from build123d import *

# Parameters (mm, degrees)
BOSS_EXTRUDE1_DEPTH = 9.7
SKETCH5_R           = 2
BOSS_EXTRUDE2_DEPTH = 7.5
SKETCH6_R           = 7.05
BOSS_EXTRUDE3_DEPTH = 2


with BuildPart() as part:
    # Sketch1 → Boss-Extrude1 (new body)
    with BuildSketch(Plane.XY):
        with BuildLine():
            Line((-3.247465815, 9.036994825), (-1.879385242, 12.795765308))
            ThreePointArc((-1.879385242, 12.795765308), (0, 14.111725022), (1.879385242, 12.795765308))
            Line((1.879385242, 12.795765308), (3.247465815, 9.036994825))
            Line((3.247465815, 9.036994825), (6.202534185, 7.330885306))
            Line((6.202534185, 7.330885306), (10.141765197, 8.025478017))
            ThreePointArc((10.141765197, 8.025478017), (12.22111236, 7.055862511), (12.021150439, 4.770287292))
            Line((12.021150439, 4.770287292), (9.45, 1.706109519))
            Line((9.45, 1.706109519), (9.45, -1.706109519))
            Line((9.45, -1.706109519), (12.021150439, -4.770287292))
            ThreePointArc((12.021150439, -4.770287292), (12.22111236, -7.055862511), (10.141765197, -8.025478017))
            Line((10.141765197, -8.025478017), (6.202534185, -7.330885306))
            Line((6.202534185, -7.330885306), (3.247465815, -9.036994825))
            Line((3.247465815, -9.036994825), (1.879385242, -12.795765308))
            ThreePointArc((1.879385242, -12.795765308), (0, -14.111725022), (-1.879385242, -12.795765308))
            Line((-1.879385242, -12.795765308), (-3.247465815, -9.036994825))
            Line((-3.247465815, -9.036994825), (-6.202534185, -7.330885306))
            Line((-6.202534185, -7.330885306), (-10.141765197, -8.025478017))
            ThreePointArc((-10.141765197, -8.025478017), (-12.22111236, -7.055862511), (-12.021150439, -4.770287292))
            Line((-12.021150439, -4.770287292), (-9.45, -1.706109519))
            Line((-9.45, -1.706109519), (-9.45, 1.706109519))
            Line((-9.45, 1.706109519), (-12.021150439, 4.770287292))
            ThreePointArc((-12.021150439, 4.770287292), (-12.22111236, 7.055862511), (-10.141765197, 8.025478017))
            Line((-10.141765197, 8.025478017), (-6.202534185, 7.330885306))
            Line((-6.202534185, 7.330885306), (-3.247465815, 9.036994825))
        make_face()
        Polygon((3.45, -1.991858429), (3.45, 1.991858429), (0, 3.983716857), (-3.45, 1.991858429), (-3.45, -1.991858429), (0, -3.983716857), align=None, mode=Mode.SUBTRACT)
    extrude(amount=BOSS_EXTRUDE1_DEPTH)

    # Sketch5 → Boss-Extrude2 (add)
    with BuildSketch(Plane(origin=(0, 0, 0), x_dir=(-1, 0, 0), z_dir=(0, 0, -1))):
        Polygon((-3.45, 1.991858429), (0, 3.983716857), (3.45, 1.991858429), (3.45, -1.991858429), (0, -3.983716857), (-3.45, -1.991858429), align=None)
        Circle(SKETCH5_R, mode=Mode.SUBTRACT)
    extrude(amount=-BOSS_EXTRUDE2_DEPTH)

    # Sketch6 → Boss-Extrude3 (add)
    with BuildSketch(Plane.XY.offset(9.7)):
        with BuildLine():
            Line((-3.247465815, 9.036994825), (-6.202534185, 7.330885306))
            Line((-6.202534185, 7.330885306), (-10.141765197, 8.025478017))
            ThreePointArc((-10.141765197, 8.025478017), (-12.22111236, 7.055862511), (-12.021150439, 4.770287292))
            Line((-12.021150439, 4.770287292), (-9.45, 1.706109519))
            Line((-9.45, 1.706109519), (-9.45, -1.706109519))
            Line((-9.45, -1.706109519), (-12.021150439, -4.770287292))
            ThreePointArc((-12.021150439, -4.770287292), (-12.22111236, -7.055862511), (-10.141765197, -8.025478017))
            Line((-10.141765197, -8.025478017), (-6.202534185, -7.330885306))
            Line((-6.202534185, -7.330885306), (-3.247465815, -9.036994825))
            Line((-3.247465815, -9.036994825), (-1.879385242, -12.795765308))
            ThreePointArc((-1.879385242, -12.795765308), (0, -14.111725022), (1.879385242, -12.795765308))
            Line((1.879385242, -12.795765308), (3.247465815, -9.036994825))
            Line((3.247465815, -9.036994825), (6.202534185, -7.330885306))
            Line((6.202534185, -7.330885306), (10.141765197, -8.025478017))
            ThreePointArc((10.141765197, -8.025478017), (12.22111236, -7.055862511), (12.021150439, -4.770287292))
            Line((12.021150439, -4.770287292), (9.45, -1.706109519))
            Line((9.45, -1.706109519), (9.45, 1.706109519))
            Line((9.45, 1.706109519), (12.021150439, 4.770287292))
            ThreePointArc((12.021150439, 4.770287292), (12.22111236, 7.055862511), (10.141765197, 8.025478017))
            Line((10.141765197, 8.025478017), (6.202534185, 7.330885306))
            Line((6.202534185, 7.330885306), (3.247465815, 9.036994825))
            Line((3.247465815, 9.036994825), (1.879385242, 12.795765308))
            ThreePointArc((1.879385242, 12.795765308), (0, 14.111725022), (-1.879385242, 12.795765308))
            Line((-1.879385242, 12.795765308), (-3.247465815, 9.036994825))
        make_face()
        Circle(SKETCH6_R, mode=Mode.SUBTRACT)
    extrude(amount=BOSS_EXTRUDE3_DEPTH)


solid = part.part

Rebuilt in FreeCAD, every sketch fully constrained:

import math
import FreeCAD as App
import Part
import Sketcher
Q = App.Units.Quantity

doc = App.newDocument("Part")
body = doc.addObject("PartDesign::Body", "Body")

sketch1 = body.newObject("Sketcher::SketchObject", "Sketch")
sketch1.AttachmentSupport = (doc.getObject("XY_Plane"), [""])
sketch1.MapMode = "FlatFace"
sketch1.addGeometry(Part.LineSegment(App.Vector(-1.9, 12.8, 0), App.Vector(-3.2, 9, 0)), False)
sketch1.addGeometry(Part.LineSegment(App.Vector(-3.2, 9, 0), App.Vector(-6.2, 7.3, 0)), False)
sketch1.addGeometry(Part.LineSegment(App.Vector(-6.2, 7.3, 0), App.Vector(-10.1, 8, 0)), False)
sketch1.addGeometry(Part.ArcOfCircle(Part.Circle(App.Vector(-10.5, 6.1, 0), App.Vector(0, 0, 1), 2), math.radians(80), math.radians(220)), False)
sketch1.addGeometry(Part.LineSegment(App.Vector(-12, 4.8, 0), App.Vector(-9.4, 1.7, 0)), False)
sketch1.addGeometry(Part.LineSegment(App.Vector(-9.4, 1.7, 0), App.Vector(-9.4, -1.7, 0)), False)
sketch1.addGeometry(Part.LineSegment(App.Vector(-9.4, -1.7, 0), App.Vector(-12, -4.8, 0)), False)
sketch1.addGeometry(Part.ArcOfCircle(Part.Circle(App.Vector(-10.5, -6.1, 0), App.Vector(0, 0, 1), 2), math.radians(140), math.radians(280)), False)
sketch1.addGeometry(Part.LineSegment(App.Vector(-10.1, -8, 0), App.Vector(-6.2, -7.3, 0)), False)
sketch1.addGeometry(Part.LineSegment(App.Vector(-6.2, -7.3, 0), App.Vector(-3.2, -9, 0)), False)
sketch1.addGeometry(Part.LineSegment(App.Vector(-3.2, -9, 0), App.Vector(-1.9, -12.8, 0)), False)
sketch1.addGeometry(Part.ArcOfCircle(Part.Circle(App.Vector(0, -12.1, 0), App.Vector(0, 0, 1), 2), math.radians(-160), math.radians(-20)), False)
sketch1.addGeometry(Part.LineSegment(App.Vector(1.9, -12.8, 0), App.Vector(3.2, -9, 0)), False)
sketch1.addGeometry(Part.LineSegment(App.Vector(3.2, -9, 0), App.Vector(6.2, -7.3, 0)), False)
sketch1.addGeometry(Part.LineSegment(App.Vector(6.2, -7.3, 0), App.Vector(10.1, -8, 0)), False)
sketch1.addGeometry(Part.ArcOfCircle(Part.Circle(App.Vector(10.5, -6.1, 0), App.Vector(0, 0, 1), 2), math.radians(-100), math.radians(40)), False)
sketch1.addGeometry(Part.LineSegment(App.Vector(12, -4.8, 0), App.Vector(9.4, -1.7, 0)), False)
sketch1.addGeometry(Part.LineSegment(App.Vector(9.4, -1.7, 0), App.Vector(9.4, 1.7, 0)), False)
sketch1.addGeometry(Part.LineSegment(App.Vector(9.4, 1.7, 0), App.Vector(12, 4.8, 0)), False)
sketch1.addGeometry(Part.ArcOfCircle(Part.Circle(App.Vector(10.5, 6.1, 0), App.Vector(0, 0, 1), 2), math.radians(-40), math.radians(100)), False)
sketch1.addGeometry(Part.LineSegment(App.Vector(10.1, 8, 0), App.Vector(6.2, 7.3, 0)), False)
sketch1.addGeometry(Part.LineSegment(App.Vector(6.2, 7.3, 0), App.Vector(3.2, 9, 0)), False)
sketch1.addGeometry(Part.LineSegment(App.Vector(3.2, 9, 0), App.Vector(1.9, 12.8, 0)), False)
sketch1.addGeometry(Part.ArcOfCircle(Part.Circle(App.Vector(0, 12.1, 0), App.Vector(0, 0, 1), 2), math.radians(20), math.radians(160)), False)
sketch1.addGeometry(Part.LineSegment(App.Vector(3.5, -2, 0), App.Vector(0, -4, 0)), False)
sketch1.addGeometry(Part.LineSegment(App.Vector(0, -4, 0), App.Vector(-3.5, -2, 0)), False)
sketch1.addGeometry(Part.LineSegment(App.Vector(-3.5, -2, 0), App.Vector(-3.5, 2, 0)), False)
sketch1.addGeometry(Part.LineSegment(App.Vector(-3.5, 2, 0), App.Vector(0, 4, 0)), False)
sketch1.addGeometry(Part.LineSegment(App.Vector(0, 4, 0), App.Vector(3.5, 2, 0)), False)
sketch1.addGeometry(Part.LineSegment(App.Vector(3.5, 2, 0), App.Vector(3.5, -2, 0)), False)
sketch1.addConstraint(Sketcher.Constraint("Coincident", 0, 2, 1, 1))
sketch1.addConstraint(Sketcher.Constraint("Coincident", 1, 2, 2, 1))
sketch1.addConstraint(Sketcher.Constraint("Tangent", 2, 2, 3, 1))
sketch1.addConstraint(Sketcher.Constraint("Tangent", 3, 2, 4, 1))
sketch1.addConstraint(Sketcher.Constraint("Coincident", 4, 2, 5, 1))
sketch1.addConstraint(Sketcher.Constraint("Coincident", 5, 2, 6, 1))
sketch1.addConstraint(Sketcher.Constraint("Tangent", 6, 2, 7, 1))
sketch1.addConstraint(Sketcher.Constraint("Tangent", 7, 2, 8, 1))
sketch1.addConstraint(Sketcher.Constraint("Coincident", 8, 2, 9, 1))
sketch1.addConstraint(Sketcher.Constraint("Coincident", 9, 2, 10, 1))
sketch1.addConstraint(Sketcher.Constraint("Tangent", 10, 2, 11, 1))
sketch1.addConstraint(Sketcher.Constraint("Tangent", 11, 2, 12, 1))
sketch1.addConstraint(Sketcher.Constraint("Coincident", 12, 2, 13, 1))
sketch1.addConstraint(Sketcher.Constraint("Coincident", 13, 2, 14, 1))
sketch1.addConstraint(Sketcher.Constraint("Tangent", 14, 2, 15, 1))
sketch1.addConstraint(Sketcher.Constraint("Tangent", 15, 2, 16, 1))
sketch1.addConstraint(Sketcher.Constraint("Coincident", 16, 2, 17, 1))
sketch1.addConstraint(Sketcher.Constraint("Coincident", 17, 2, 18, 1))
sketch1.addConstraint(Sketcher.Constraint("Tangent", 18, 2, 19, 1))
sketch1.addConstraint(Sketcher.Constraint("Tangent", 19, 2, 20, 1))
sketch1.addConstraint(Sketcher.Constraint("Coincident", 20, 2, 21, 1))
sketch1.addConstraint(Sketcher.Constraint("Coincident", 21, 2, 22, 1))
sketch1.addConstraint(Sketcher.Constraint("Tangent", 22, 2, 23, 1))
sketch1.addConstraint(Sketcher.Constraint("Tangent", 23, 2, 0, 1))
sketch1.addConstraint(Sketcher.Constraint("Coincident", 24, 2, 25, 1))
sketch1.addConstraint(Sketcher.Constraint("Coincident", 25, 2, 26, 1))
sketch1.addConstraint(Sketcher.Constraint("Coincident", 26, 2, 27, 1))
sketch1.addConstraint(Sketcher.Constraint("Coincident", 27, 2, 28, 1))
sketch1.addConstraint(Sketcher.Constraint("Coincident", 28, 2, 29, 1))
sketch1.addConstraint(Sketcher.Constraint("Coincident", 29, 2, 24, 1))
sketch1.addConstraint(Sketcher.Constraint("Vertical", 5))
sketch1.addConstraint(Sketcher.Constraint("Vertical", 17))
sketch1.addConstraint(Sketcher.Constraint("Vertical", 26))
sketch1.addConstraint(Sketcher.Constraint("Vertical", 29))
sketch1.addConstraint(Sketcher.Constraint("Equal", 3, 7))
sketch1.addConstraint(Sketcher.Constraint("Equal", 7, 11))
sketch1.addConstraint(Sketcher.Constraint("Equal", 11, 15))
sketch1.addConstraint(Sketcher.Constraint("Equal", 15, 19))
sketch1.addConstraint(Sketcher.Constraint("Equal", 19, 23))
sketch1.addConstraint(Sketcher.Constraint("Symmetric", 3, 3, 15, 3, -1, 1))
sketch1.addConstraint(Sketcher.Constraint("Symmetric", 7, 3, 19, 3, -1, 1))
sketch1.addConstraint(Sketcher.Constraint("Symmetric", 11, 3, 23, 3, -1, 1))
sketch1.addConstraint(Sketcher.Constraint("Symmetric", 0, 2, 12, 2, -1, 1))
sketch1.addConstraint(Sketcher.Constraint("Symmetric", 1, 2, 13, 2, -1, 1))
sketch1.addConstraint(Sketcher.Constraint("Symmetric", 4, 2, 16, 2, -1, 1))
sketch1.addConstraint(Sketcher.Constraint("Symmetric", 8, 2, 20, 2, -1, 1))
sketch1.addConstraint(Sketcher.Constraint("Symmetric", 9, 2, 21, 2, -1, 1))
sketch1.addConstraint(Sketcher.Constraint("Symmetric", 24, 2, 27, 2, -1, 1))
sketch1.addConstraint(Sketcher.Constraint("Symmetric", 25, 2, 28, 2, -1, 1))
sketch1.addConstraint(Sketcher.Constraint("Symmetric", 7, 3, 15, 3, -2))
sketch1.addConstraint(Sketcher.Constraint("Symmetric", 10, 2, 11, 2, -2))
sketch1.addConstraint(Sketcher.Constraint("Symmetric", 8, 2, 13, 2, -2))
sketch1.addConstraint(Sketcher.Constraint("PointOnObject", 24, 2, -2))
sketch1.addConstraint(Sketcher.Constraint("Parallel", 6, 18))
sketch1.addConstraint(Sketcher.Constraint("Parallel", 13, 24))
sketch1.addConstraint(Sketcher.Constraint("Parallel", 21, 25))
sketch1.addConstraint(Sketcher.Constraint("Parallel", 24, 27))
sketch1.addConstraint(Sketcher.Constraint("Horizontal", 9, 2, 12, 2))
sketch1.addConstraint(Sketcher.Constraint("Horizontal", 6, 2, 15, 2))
sketch1.addConstraint(Sketcher.Constraint("Equal", 0, 2))
sketch1.addConstraint(Sketcher.Constraint("Equal", 2, 4))
sketch1.addConstraint(Sketcher.Constraint("Radius", 3, Q("2 mm")))
sketch1.addConstraint(Sketcher.Constraint("Angle", 0, Q("-110 deg")))
sketch1.addConstraint(Sketcher.Constraint("Angle", 1, Q("-150 deg")))
sketch1.addConstraint(Sketcher.Constraint("Angle", 2, Q("170 deg")))
sketch1.addConstraint(Sketcher.Constraint("Angle", 4, Q("-50 deg")))
sketch1.addConstraint(Sketcher.Constraint("Distance", 0, Q("4 mm")))
sketch1.addConstraint(Sketcher.Constraint("DistanceX", 5, 2, 25, 2, Q("6 mm")))
sketch1.addConstraint(Sketcher.Constraint("DistanceX", 26, 2, 28, 2, Q("6.9 mm")))
sketch1.addConstraint(Sketcher.Constraint("DistanceY", 5, 2, 5, 1, Q("3.412219 mm")))
sketch1.addConstraint(Sketcher.Constraint("DistanceY", 26, 1, 26, 2, Q("3.983717 mm")))
pad1 = body.newObject("PartDesign::Pad", "Pad")
pad1.Profile = sketch1
pad1.Length = 9.7

sketch2 = body.newObject("Sketcher::SketchObject", "Sketch001")
sketch2.AttachmentSupport = (doc.getObject("XY_Plane"), [""])
sketch2.MapMode = "FlatFace"
sketch2.addGeometry(Part.LineSegment(App.Vector(0, 4, 0), App.Vector(3.5, 2, 0)), False)
sketch2.addGeometry(Part.LineSegment(App.Vector(3.5, 2, 0), App.Vector(3.5, -2, 0)), False)
sketch2.addGeometry(Part.LineSegment(App.Vector(3.5, -2, 0), App.Vector(0, -4, 0)), False)
sketch2.addGeometry(Part.LineSegment(App.Vector(0, -4, 0), App.Vector(-3.5, -2, 0)), False)
sketch2.addGeometry(Part.LineSegment(App.Vector(-3.5, -2, 0), App.Vector(-3.5, 2, 0)), False)
sketch2.addGeometry(Part.LineSegment(App.Vector(-3.5, 2, 0), App.Vector(0, 4, 0)), False)
sketch2.addGeometry(Part.Circle(App.Vector(0, 0, 0), App.Vector(0, 0, 1), 2), False)
sketch2.addConstraint(Sketcher.Constraint("Coincident", 0, 2, 1, 1))
sketch2.addConstraint(Sketcher.Constraint("Coincident", 1, 2, 2, 1))
sketch2.addConstraint(Sketcher.Constraint("Coincident", 2, 2, 3, 1))
sketch2.addConstraint(Sketcher.Constraint("Coincident", 3, 2, 4, 1))
sketch2.addConstraint(Sketcher.Constraint("Coincident", 4, 2, 5, 1))
sketch2.addConstraint(Sketcher.Constraint("Coincident", 5, 2, 0, 1))
sketch2.addConstraint(Sketcher.Constraint("Vertical", 1))
sketch2.addConstraint(Sketcher.Constraint("Vertical", 4))
sketch2.addConstraint(Sketcher.Constraint("Coincident", 6, 3, -1, 1))
sketch2.addConstraint(Sketcher.Constraint("Symmetric", 0, 2, 3, 2, -1, 1))
sketch2.addConstraint(Sketcher.Constraint("Symmetric", 2, 2, 5, 2, -1, 1))
sketch2.addConstraint(Sketcher.Constraint("PointOnObject", 2, 2, -2))
sketch2.addConstraint(Sketcher.Constraint("Parallel", 2, 5))
sketch2.addConstraint(Sketcher.Constraint("Horizontal", 1, 2, 3, 2))
sketch2.addConstraint(Sketcher.Constraint("Diameter", 6, Q("4 mm")))
sketch2.addConstraint(Sketcher.Constraint("Angle", 0, Q("-30 deg")))
sketch2.addConstraint(Sketcher.Constraint("DistanceX", 3, 2, 1, 2, Q("6.9 mm")))
sketch2.addConstraint(Sketcher.Constraint("DistanceY", 1, 2, 1, 1, Q("3.983717 mm")))
pad2 = body.newObject("PartDesign::Pad", "Pad001")
pad2.Profile = sketch2
pad2.Length = 7.5

sketch3 = body.newObject("Sketcher::SketchObject", "Sketch002")
sketch3.AttachmentSupport = (doc.getObject("XY_Plane"), [""])
sketch3.MapMode = "FlatFace"
sketch3.AttachmentOffset = App.Placement(App.Vector(0, 0, 9.7), App.Rotation())
sketch3.addGeometry(Part.LineSegment(App.Vector(-3.2, 9, 0), App.Vector(-6.2, 7.3, 0)), False)
sketch3.addGeometry(Part.LineSegment(App.Vector(-6.2, 7.3, 0), App.Vector(-10.1, 8, 0)), False)
sketch3.addGeometry(Part.ArcOfCircle(Part.Circle(App.Vector(-10.5, 6.1, 0), App.Vector(0, 0, 1), 2), math.radians(80), math.radians(220)), False)
sketch3.addGeometry(Part.LineSegment(App.Vector(-12, 4.8, 0), App.Vector(-9.4, 1.7, 0)), False)
sketch3.addGeometry(Part.LineSegment(App.Vector(-9.4, 1.7, 0), App.Vector(-9.4, -1.7, 0)), False)
sketch3.addGeometry(Part.LineSegment(App.Vector(-9.4, -1.7, 0), App.Vector(-12, -4.8, 0)), False)
sketch3.addGeometry(Part.ArcOfCircle(Part.Circle(App.Vector(-10.5, -6.1, 0), App.Vector(0, 0, 1), 2), math.radians(140), math.radians(280)), False)
sketch3.addGeometry(Part.LineSegment(App.Vector(-10.1, -8, 0), App.Vector(-6.2, -7.3, 0)), False)
sketch3.addGeometry(Part.LineSegment(App.Vector(-6.2, -7.3, 0), App.Vector(-3.2, -9, 0)), False)
sketch3.addGeometry(Part.LineSegment(App.Vector(-3.2, -9, 0), App.Vector(-1.9, -12.8, 0)), False)
sketch3.addGeometry(Part.ArcOfCircle(Part.Circle(App.Vector(0, -12.1, 0), App.Vector(0, 0, 1), 2), math.radians(-160), math.radians(-20)), False)
sketch3.addGeometry(Part.LineSegment(App.Vector(1.9, -12.8, 0), App.Vector(3.2, -9, 0)), False)
sketch3.addGeometry(Part.LineSegment(App.Vector(3.2, -9, 0), App.Vector(6.2, -7.3, 0)), False)
sketch3.addGeometry(Part.LineSegment(App.Vector(6.2, -7.3, 0), App.Vector(10.1, -8, 0)), False)
sketch3.addGeometry(Part.ArcOfCircle(Part.Circle(App.Vector(10.5, -6.1, 0), App.Vector(0, 0, 1), 2), math.radians(-100), math.radians(40)), False)
sketch3.addGeometry(Part.LineSegment(App.Vector(12, -4.8, 0), App.Vector(9.4, -1.7, 0)), False)
sketch3.addGeometry(Part.LineSegment(App.Vector(9.4, -1.7, 0), App.Vector(9.4, 1.7, 0)), False)
sketch3.addGeometry(Part.LineSegment(App.Vector(9.4, 1.7, 0), App.Vector(12, 4.8, 0)), False)
sketch3.addGeometry(Part.ArcOfCircle(Part.Circle(App.Vector(10.5, 6.1, 0), App.Vector(0, 0, 1), 2), math.radians(-40), math.radians(100)), False)
sketch3.addGeometry(Part.LineSegment(App.Vector(10.1, 8, 0), App.Vector(6.2, 7.3, 0)), False)
sketch3.addGeometry(Part.LineSegment(App.Vector(6.2, 7.3, 0), App.Vector(3.2, 9, 0)), False)
sketch3.addGeometry(Part.LineSegment(App.Vector(3.2, 9, 0), App.Vector(1.9, 12.8, 0)), False)
sketch3.addGeometry(Part.ArcOfCircle(Part.Circle(App.Vector(0, 12.1, 0), App.Vector(0, 0, 1), 2), math.radians(20), math.radians(160)), False)
sketch3.addGeometry(Part.LineSegment(App.Vector(-1.9, 12.8, 0), App.Vector(-3.2, 9, 0)), False)
sketch3.addGeometry(Part.Circle(App.Vector(0, 0, 0), App.Vector(0, 0, 1), 7), False)
sketch3.addConstraint(Sketcher.Constraint("Coincident", 0, 2, 1, 1))
sketch3.addConstraint(Sketcher.Constraint("Tangent", 1, 2, 2, 1))
sketch3.addConstraint(Sketcher.Constraint("Tangent", 2, 2, 3, 1))
sketch3.addConstraint(Sketcher.Constraint("Coincident", 3, 2, 4, 1))
sketch3.addConstraint(Sketcher.Constraint("Coincident", 4, 2, 5, 1))
sketch3.addConstraint(Sketcher.Constraint("Tangent", 5, 2, 6, 1))
sketch3.addConstraint(Sketcher.Constraint("Tangent", 6, 2, 7, 1))
sketch3.addConstraint(Sketcher.Constraint("Coincident", 7, 2, 8, 1))
sketch3.addConstraint(Sketcher.Constraint("Coincident", 8, 2, 9, 1))
sketch3.addConstraint(Sketcher.Constraint("Tangent", 9, 2, 10, 1))
sketch3.addConstraint(Sketcher.Constraint("Tangent", 10, 2, 11, 1))
sketch3.addConstraint(Sketcher.Constraint("Coincident", 11, 2, 12, 1))
sketch3.addConstraint(Sketcher.Constraint("Coincident", 12, 2, 13, 1))
sketch3.addConstraint(Sketcher.Constraint("Tangent", 13, 2, 14, 1))
sketch3.addConstraint(Sketcher.Constraint("Tangent", 14, 2, 15, 1))
sketch3.addConstraint(Sketcher.Constraint("Coincident", 15, 2, 16, 1))
sketch3.addConstraint(Sketcher.Constraint("Coincident", 16, 2, 17, 1))
sketch3.addConstraint(Sketcher.Constraint("Tangent", 17, 2, 18, 1))
sketch3.addConstraint(Sketcher.Constraint("Tangent", 18, 2, 19, 1))
sketch3.addConstraint(Sketcher.Constraint("Coincident", 19, 2, 20, 1))
sketch3.addConstraint(Sketcher.Constraint("Coincident", 20, 2, 21, 1))
sketch3.addConstraint(Sketcher.Constraint("Tangent", 21, 2, 22, 1))
sketch3.addConstraint(Sketcher.Constraint("Tangent", 22, 2, 23, 1))
sketch3.addConstraint(Sketcher.Constraint("Coincident", 23, 2, 0, 1))
sketch3.addConstraint(Sketcher.Constraint("Vertical", 4))
sketch3.addConstraint(Sketcher.Constraint("Vertical", 16))
sketch3.addConstraint(Sketcher.Constraint("Coincident", 24, 3, -1, 1))
sketch3.addConstraint(Sketcher.Constraint("Equal", 2, 6))
sketch3.addConstraint(Sketcher.Constraint("Equal", 6, 10))
sketch3.addConstraint(Sketcher.Constraint("Equal", 10, 14))
sketch3.addConstraint(Sketcher.Constraint("Equal", 14, 18))
sketch3.addConstraint(Sketcher.Constraint("Equal", 18, 22))
sketch3.addConstraint(Sketcher.Constraint("Symmetric", 2, 3, 14, 3, -1, 1))
sketch3.addConstraint(Sketcher.Constraint("Symmetric", 6, 3, 18, 3, -1, 1))
sketch3.addConstraint(Sketcher.Constraint("Symmetric", 10, 3, 22, 3, -1, 1))
sketch3.addConstraint(Sketcher.Constraint("Symmetric", 0, 2, 12, 2, -1, 1))
sketch3.addConstraint(Sketcher.Constraint("Symmetric", 3, 2, 15, 2, -1, 1))
sketch3.addConstraint(Sketcher.Constraint("Symmetric", 7, 2, 19, 2, -1, 1))
sketch3.addConstraint(Sketcher.Constraint("Symmetric", 8, 2, 20, 2, -1, 1))
sketch3.addConstraint(Sketcher.Constraint("Symmetric", 11, 2, 23, 2, -1, 1))
sketch3.addConstraint(Sketcher.Constraint("Symmetric", 6, 3, 14, 3, -2))
sketch3.addConstraint(Sketcher.Constraint("Symmetric", 9, 2, 10, 2, -2))
sketch3.addConstraint(Sketcher.Constraint("Symmetric", 7, 2, 12, 2, -2))
sketch3.addConstraint(Sketcher.Constraint("Parallel", 5, 17))
sketch3.addConstraint(Sketcher.Constraint("Horizontal", 8, 2, 11, 2))
sketch3.addConstraint(Sketcher.Constraint("Horizontal", 5, 2, 14, 2))
sketch3.addConstraint(Sketcher.Constraint("Equal", 1, 3))
sketch3.addConstraint(Sketcher.Constraint("Equal", 7, 9))
sketch3.addConstraint(Sketcher.Constraint("Radius", 2, Q("2 mm")))
sketch3.addConstraint(Sketcher.Constraint("Diameter", 24, Q("14.1 mm")))
sketch3.addConstraint(Sketcher.Constraint("Angle", 0, Q("-150 deg")))
sketch3.addConstraint(Sketcher.Constraint("Angle", 1, Q("170 deg")))
sketch3.addConstraint(Sketcher.Constraint("Angle", 3, Q("-50 deg")))
sketch3.addConstraint(Sketcher.Constraint("Angle", 9, Q("-70 deg")))
sketch3.addConstraint(Sketcher.Constraint("Distance", 1, Q("4 mm")))
sketch3.addConstraint(Sketcher.Constraint("DistanceX", 3, 2, -1, 1, Q("9.45 mm")))
sketch3.addConstraint(Sketcher.Constraint("DistanceY", 4, 2, 4, 1, Q("3.412219 mm")))
pad3 = body.newObject("PartDesign::Pad", "Pad002")
pad3.Profile = sketch3
pad3.Length = 2

doc.recompute()
